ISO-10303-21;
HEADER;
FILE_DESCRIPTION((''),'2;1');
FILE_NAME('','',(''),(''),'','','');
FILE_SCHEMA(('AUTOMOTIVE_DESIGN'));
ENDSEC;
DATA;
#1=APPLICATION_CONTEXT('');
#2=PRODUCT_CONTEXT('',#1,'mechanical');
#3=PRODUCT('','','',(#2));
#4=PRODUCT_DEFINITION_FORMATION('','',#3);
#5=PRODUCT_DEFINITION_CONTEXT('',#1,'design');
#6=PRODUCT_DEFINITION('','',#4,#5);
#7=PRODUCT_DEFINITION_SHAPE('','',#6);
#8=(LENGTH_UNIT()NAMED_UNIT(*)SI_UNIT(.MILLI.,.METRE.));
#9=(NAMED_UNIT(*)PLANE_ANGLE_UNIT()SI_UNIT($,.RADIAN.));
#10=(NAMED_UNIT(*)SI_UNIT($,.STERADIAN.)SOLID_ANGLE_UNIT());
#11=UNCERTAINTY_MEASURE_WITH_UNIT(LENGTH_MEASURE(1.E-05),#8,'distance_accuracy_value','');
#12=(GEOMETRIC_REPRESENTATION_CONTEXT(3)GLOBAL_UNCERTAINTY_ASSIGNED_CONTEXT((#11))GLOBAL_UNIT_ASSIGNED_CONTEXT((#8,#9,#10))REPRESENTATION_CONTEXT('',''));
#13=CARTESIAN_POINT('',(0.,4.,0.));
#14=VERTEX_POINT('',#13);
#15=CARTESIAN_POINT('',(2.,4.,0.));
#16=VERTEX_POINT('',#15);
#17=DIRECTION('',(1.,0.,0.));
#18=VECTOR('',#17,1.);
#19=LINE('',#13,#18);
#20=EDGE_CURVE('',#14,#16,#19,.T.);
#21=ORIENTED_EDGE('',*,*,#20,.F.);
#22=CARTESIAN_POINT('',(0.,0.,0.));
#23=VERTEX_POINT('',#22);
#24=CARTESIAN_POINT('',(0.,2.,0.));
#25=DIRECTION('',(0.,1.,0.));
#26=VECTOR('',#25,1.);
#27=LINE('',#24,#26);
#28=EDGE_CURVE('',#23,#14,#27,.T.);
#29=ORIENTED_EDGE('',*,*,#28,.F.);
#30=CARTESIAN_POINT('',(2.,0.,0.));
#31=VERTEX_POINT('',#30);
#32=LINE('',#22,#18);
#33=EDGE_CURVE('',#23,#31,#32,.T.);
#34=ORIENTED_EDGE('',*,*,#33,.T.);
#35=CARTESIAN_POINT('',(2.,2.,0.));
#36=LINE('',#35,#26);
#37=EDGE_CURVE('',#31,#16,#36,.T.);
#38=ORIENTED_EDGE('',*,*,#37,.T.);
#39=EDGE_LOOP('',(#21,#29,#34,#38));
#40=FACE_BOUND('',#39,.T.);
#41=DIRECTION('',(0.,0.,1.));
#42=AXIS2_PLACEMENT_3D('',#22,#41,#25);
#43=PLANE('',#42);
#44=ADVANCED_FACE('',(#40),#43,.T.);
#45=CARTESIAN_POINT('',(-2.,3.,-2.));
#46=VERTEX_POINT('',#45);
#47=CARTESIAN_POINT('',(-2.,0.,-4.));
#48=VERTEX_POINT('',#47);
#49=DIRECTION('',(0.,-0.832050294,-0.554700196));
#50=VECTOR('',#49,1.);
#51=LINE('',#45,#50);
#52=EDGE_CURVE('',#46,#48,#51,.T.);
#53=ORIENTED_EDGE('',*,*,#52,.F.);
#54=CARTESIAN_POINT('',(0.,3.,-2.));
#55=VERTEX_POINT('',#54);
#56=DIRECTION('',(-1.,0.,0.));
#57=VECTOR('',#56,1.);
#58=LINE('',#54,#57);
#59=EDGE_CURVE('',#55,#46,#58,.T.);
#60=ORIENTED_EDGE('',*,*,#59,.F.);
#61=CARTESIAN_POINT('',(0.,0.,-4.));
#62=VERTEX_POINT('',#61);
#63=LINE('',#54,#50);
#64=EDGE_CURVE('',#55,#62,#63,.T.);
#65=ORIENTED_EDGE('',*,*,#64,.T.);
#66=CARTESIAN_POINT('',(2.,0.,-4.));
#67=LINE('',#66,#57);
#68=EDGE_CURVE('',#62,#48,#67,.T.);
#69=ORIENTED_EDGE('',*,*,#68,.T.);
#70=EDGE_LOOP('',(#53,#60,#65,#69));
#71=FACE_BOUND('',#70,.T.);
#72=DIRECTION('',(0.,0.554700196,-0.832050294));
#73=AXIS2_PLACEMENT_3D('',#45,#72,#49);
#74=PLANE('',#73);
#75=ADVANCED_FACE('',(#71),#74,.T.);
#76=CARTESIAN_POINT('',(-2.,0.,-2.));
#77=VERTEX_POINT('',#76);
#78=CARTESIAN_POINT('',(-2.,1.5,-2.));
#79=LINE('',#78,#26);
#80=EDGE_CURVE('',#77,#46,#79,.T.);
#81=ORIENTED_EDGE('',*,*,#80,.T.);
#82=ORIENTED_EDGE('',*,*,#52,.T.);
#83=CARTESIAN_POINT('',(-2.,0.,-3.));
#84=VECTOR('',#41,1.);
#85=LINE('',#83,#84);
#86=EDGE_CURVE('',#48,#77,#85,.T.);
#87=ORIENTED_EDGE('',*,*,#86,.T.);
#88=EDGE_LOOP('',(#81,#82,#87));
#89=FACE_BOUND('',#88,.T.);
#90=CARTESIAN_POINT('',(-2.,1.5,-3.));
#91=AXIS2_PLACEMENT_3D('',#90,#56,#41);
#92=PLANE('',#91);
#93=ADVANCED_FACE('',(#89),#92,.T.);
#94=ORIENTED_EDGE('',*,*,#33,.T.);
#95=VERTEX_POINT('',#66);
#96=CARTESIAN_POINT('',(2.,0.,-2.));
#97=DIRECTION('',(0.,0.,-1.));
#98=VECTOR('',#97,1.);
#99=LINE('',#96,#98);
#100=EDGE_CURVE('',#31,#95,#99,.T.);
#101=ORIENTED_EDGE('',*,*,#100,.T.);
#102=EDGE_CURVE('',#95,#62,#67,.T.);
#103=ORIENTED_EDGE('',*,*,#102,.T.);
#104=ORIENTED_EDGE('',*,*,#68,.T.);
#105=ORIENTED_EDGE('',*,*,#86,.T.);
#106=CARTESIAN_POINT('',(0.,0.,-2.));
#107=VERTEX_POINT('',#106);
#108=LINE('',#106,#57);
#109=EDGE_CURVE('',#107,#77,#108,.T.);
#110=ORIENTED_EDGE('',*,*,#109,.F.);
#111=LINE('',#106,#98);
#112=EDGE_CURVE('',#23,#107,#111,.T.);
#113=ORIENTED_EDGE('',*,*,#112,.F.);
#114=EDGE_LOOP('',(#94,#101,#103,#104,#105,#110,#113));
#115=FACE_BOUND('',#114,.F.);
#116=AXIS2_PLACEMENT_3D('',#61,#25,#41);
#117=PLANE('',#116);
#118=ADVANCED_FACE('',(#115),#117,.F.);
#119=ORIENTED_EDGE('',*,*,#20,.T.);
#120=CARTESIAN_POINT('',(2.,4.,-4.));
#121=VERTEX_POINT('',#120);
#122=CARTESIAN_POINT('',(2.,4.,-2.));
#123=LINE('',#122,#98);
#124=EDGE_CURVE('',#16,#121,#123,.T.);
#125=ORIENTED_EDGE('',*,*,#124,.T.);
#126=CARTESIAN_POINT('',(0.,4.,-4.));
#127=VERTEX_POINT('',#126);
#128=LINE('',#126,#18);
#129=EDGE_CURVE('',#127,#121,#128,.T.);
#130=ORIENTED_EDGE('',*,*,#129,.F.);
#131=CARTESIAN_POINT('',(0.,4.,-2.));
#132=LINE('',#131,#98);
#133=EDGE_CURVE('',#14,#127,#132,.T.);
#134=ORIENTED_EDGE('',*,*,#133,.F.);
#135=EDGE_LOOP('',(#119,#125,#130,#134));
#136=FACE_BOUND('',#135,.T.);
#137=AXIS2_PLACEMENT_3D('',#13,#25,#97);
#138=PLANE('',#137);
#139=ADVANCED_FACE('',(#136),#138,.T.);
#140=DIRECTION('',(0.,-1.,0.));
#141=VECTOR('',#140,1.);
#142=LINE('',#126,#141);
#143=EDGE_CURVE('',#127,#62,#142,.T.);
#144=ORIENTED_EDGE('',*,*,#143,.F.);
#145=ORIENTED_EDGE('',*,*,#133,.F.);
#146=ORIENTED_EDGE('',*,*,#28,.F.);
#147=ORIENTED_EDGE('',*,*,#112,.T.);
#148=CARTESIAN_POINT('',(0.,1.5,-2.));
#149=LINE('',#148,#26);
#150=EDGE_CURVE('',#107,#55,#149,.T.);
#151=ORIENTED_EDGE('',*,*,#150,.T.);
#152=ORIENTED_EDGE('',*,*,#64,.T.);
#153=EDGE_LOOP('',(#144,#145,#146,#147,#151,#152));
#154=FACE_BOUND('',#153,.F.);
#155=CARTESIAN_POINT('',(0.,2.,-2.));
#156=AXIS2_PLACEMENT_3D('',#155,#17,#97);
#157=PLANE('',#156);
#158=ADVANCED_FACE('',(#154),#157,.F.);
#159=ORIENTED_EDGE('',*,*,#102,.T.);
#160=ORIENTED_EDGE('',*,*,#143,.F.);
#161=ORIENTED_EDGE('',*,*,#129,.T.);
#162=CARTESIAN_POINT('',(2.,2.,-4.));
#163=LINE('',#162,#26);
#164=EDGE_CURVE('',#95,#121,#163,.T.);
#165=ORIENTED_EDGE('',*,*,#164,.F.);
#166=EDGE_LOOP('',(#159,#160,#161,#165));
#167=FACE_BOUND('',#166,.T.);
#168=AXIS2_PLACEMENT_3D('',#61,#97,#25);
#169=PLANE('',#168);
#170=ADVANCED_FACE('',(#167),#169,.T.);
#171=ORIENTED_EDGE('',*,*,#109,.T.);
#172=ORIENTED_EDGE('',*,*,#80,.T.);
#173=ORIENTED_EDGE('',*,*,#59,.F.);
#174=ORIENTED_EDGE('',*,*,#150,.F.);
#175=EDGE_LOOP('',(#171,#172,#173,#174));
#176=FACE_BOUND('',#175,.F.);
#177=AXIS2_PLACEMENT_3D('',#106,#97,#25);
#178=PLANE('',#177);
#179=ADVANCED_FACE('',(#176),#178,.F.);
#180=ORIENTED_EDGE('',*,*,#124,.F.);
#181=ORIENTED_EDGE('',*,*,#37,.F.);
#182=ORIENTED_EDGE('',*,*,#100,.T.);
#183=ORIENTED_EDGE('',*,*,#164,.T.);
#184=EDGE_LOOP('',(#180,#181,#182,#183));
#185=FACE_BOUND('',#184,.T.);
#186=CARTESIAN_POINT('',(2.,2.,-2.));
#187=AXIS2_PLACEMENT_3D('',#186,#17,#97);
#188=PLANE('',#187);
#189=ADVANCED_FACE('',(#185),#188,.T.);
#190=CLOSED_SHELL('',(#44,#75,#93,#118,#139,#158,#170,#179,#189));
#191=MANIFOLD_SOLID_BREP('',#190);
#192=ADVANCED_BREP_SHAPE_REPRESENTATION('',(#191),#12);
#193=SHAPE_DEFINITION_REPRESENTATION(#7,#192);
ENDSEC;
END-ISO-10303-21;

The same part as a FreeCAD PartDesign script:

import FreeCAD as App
import Part
import Sketcher
from FreeCAD import Vector

doc = App.newDocument("Part")
params = doc.addObject("Spreadsheet::Sheet", "Params")
for row, (alias, value) in enumerate([
    ("sketch1_width", "4 mm"),
    ("pad1_length", "2 mm"),
    ("sketch2_width", "3 mm"),
    ("sketch2_height", "2 mm"),
    ("pad2_length", "2 mm"),
    ("sketch3_width", "3 mm"),
    ("sketch3_height", "2 mm"),
    ("pocket1_length", "2 mm"),
], start=1):
    params.set(f"A{row}", alias)
    params.set(f"B{row}", "=" + value)
    params.setAlias(f"B{row}", alias)

body = doc.addObject("PartDesign::Body", "Body")

sketch1 = body.newObject("Sketcher::SketchObject", "Sketch")
sketch1.AttachmentSupport = (doc.getObject("YZ_Plane"), [""])
sketch1.MapMode = "FlatFace"
sketch1.addGeometry(Part.LineSegment(Vector(4, 0, 0), Vector(0, 0, 0)), False)
sketch1.addGeometry(Part.LineSegment(Vector(0, 0, 0), Vector(0, -4, 0)), False)
sketch1.addGeometry(Part.LineSegment(Vector(0, -4, 0), Vector(4, -4, 0)), False)
sketch1.addGeometry(Part.LineSegment(Vector(4, -4, 0), Vector(4, 0, 0)), False)
sketch1.addConstraint(Sketcher.Constraint("Coincident", 0, 2, 1, 1))
sketch1.addConstraint(Sketcher.Constraint("Coincident", 1, 2, 2, 1))
sketch1.addConstraint(Sketcher.Constraint("Coincident", 2, 2, 3, 1))
sketch1.addConstraint(Sketcher.Constraint("Coincident", 3, 2, 0, 1))
sketch1.addConstraint(Sketcher.Constraint("Horizontal", 0))
sketch1.addConstraint(Sketcher.Constraint("Vertical", 1))
sketch1.addConstraint(Sketcher.Constraint("Horizontal", 2))
sketch1.addConstraint(Sketcher.Constraint("Vertical", 3))
sketch1.addConstraint(Sketcher.Constraint("Coincident", 0, 2, -1, 1))
sketch1.addConstraint(Sketcher.Constraint("Equal", 2, 1))
sketch1.addConstraint(Sketcher.Constraint("DistanceX", 0, 2, 0, 1, 4.0))
sketch1.setExpression("Constraints[10]", "Params.sketch1_width")
pad1 = body.newObject("PartDesign::Pad", "Pad")
pad1.Profile = sketch1
pad1.setExpression("Length", "Params.pad1_length")

sketch2 = body.newObject("Sketcher::SketchObject", "Sketch001")
sketch2.AttachmentSupport = (doc.getObject("YZ_Plane"), [""])
sketch2.MapMode = "FlatFace"
sketch2.addGeometry(Part.LineSegment(Vector(3, -4, 0), Vector(0, -4, 0)), False)
sketch2.addGeometry(Part.LineSegment(Vector(0, -4, 0), Vector(0, -2, 0)), False)
sketch2.addGeometry(Part.LineSegment(Vector(0, -2, 0), Vector(3, -2, 0)), False)
sketch2.addGeometry(Part.LineSegment(Vector(3, -2, 0), Vector(3, -4, 0)), False)
sketch2.addConstraint(Sketcher.Constraint("Coincident", 0, 2, 1, 1))
sketch2.addConstraint(Sketcher.Constraint("Coincident", 1, 2, 2, 1))
sketch2.addConstraint(Sketcher.Constraint("Coincident", 2, 2, 3, 1))
sketch2.addConstraint(Sketcher.Constraint("Coincident", 3, 2, 0, 1))
sketch2.addConstraint(Sketcher.Constraint("Horizontal", 0))
sketch2.addConstraint(Sketcher.Constraint("Vertical", 1))
sketch2.addConstraint(Sketcher.Constraint("Horizontal", 2))
sketch2.addConstraint(Sketcher.Constraint("Vertical", 3))
sketch2.addConstraint(Sketcher.Constraint("PointOnObject", 0, 2, -2))
sketch2.addConstraint(Sketcher.Constraint("DistanceX", 0, 2, 0, 1, 3.0))
sketch2.addConstraint(Sketcher.Constraint("DistanceY", 1, 1, 1, 2, 2.0))
sketch2.addConstraint(Sketcher.Constraint("DistanceY", 0, 2, -1, 1, 4.0))
sketch2.setExpression("Constraints[9]", "Params.sketch2_width")
sketch2.setExpression("Constraints[10]", "Params.sketch2_height")
pad2 = body.newObject("PartDesign::Pad", "Pad001")
pad2.Profile = sketch2
pad2.setExpression("Length", "Params.pad2_length")
pad2.Reversed = True

sketch3 = body.newObject("Sketcher::SketchObject", "Sketch002")
sketch3.AttachmentSupport = (doc.getObject("YZ_Plane"), [""])
sketch3.MapMode = "FlatFace"
sketch3.AttachmentOffset = App.Placement(Vector(0, 0, -2), App.Rotation())
sketch3.addGeometry(Part.LineSegment(Vector(0, -4, 0), Vector(3, -2, 0)), False)
sketch3.addGeometry(Part.LineSegment(Vector(3, -2, 0), Vector(3, -4, 0)), False)
sketch3.addGeometry(Part.LineSegment(Vector(3, -4, 0), Vector(0, -4, 0)), False)
sketch3.addConstraint(Sketcher.Constraint("Coincident", 0, 2, 1, 1))
sketch3.addConstraint(Sketcher.Constraint("Coincident", 1, 2, 2, 1))
sketch3.addConstraint(Sketcher.Constraint("Coincident", 2, 2, 0, 1))
sketch3.addConstraint(Sketcher.Constraint("Vertical", 1))
sketch3.addConstraint(Sketcher.Constraint("Horizontal", 2))
sketch3.addConstraint(Sketcher.Constraint("PointOnObject", 2, 2, -2))
sketch3.addConstraint(Sketcher.Constraint("DistanceX", 2, 2, 2, 1, 3.0))
sketch3.addConstraint(Sketcher.Constraint("DistanceY", 1, 2, 1, 1, 2.0))
sketch3.addConstraint(Sketcher.Constraint("DistanceY", 0, 2, -1, 1, 2.0))
sketch3.setExpression("Constraints[6]", "Params.sketch3_width")
sketch3.setExpression("Constraints[7]", "Params.sketch3_height")
pocket1 = body.newObject("PartDesign::Pocket", "Pocket")
pocket1.Profile = sketch3
pocket1.setExpression("Length", "Params.pocket1_length")
pocket1.Reversed = True

doc.recompute()
